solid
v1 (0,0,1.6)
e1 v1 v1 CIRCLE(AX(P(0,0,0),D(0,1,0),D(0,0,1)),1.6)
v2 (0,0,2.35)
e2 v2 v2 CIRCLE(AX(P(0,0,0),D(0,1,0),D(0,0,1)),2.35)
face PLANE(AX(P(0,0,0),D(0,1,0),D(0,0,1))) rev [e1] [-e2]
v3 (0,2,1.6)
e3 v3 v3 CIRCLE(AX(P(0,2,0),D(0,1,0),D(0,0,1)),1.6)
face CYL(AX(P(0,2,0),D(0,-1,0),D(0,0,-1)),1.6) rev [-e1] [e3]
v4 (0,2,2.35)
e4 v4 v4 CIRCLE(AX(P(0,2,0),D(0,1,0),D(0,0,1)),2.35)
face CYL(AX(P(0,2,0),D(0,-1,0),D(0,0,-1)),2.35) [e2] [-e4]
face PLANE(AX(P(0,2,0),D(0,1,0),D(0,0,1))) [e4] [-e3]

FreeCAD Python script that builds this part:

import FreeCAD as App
import Part
import Sketcher

V = App.Vector
Q = App.Units.Quantity

doc = App.newDocument("Part")
params = doc.addObject("Spreadsheet::Sheet", "Params")
for row, (alias, value) in enumerate([
    ("sketch1_diameter", "4.7 mm"),
    ("sketch1_diameter2", "3.2 mm"),
    ("pad1_length", "2 mm"),
], start=1):
    params.set(f"A{row}", alias)
    params.set(f"B{row}", "=" + value)
    params.setAlias(f"B{row}", alias)

body = doc.addObject("PartDesign::Body", "Body")

# Sketch on XZ plane
sketch1 = body.newObject("Sketcher::SketchObject", "Sketch")
sketch1.AttachmentSupport = (doc.getObject("XZ_Plane"), [""])
sketch1.MapMode = "FlatFace"
sketch1.addGeometry([
    Part.Circle(V(0, 0, 0), V(0, 0, 1), 2.4),
    Part.Circle(V(0, 0, 0), V(0, 0, 1), 1.6),
], False)
sketch1.addConstraint([
    Sketcher.Constraint("Coincident", 0, 3, -1, 1),
    Sketcher.Constraint("Coincident", 1, 3, -1, 1),
    Sketcher.Constraint("Diameter", 0, Q("4.7 mm")),
    Sketcher.Constraint("Diameter", 1, Q("3.2 mm")),
])
sketch1.setExpression("Constraints[2]", "Params.sketch1_diameter")
sketch1.setExpression("Constraints[3]", "Params.sketch1_diameter2")
pad1 = body.newObject("PartDesign::Pad", "Pad")
pad1.Profile = sketch1
pad1.setExpression("Length", "Params.pad1_length")
pad1.Reversed = True

doc.recompute()
